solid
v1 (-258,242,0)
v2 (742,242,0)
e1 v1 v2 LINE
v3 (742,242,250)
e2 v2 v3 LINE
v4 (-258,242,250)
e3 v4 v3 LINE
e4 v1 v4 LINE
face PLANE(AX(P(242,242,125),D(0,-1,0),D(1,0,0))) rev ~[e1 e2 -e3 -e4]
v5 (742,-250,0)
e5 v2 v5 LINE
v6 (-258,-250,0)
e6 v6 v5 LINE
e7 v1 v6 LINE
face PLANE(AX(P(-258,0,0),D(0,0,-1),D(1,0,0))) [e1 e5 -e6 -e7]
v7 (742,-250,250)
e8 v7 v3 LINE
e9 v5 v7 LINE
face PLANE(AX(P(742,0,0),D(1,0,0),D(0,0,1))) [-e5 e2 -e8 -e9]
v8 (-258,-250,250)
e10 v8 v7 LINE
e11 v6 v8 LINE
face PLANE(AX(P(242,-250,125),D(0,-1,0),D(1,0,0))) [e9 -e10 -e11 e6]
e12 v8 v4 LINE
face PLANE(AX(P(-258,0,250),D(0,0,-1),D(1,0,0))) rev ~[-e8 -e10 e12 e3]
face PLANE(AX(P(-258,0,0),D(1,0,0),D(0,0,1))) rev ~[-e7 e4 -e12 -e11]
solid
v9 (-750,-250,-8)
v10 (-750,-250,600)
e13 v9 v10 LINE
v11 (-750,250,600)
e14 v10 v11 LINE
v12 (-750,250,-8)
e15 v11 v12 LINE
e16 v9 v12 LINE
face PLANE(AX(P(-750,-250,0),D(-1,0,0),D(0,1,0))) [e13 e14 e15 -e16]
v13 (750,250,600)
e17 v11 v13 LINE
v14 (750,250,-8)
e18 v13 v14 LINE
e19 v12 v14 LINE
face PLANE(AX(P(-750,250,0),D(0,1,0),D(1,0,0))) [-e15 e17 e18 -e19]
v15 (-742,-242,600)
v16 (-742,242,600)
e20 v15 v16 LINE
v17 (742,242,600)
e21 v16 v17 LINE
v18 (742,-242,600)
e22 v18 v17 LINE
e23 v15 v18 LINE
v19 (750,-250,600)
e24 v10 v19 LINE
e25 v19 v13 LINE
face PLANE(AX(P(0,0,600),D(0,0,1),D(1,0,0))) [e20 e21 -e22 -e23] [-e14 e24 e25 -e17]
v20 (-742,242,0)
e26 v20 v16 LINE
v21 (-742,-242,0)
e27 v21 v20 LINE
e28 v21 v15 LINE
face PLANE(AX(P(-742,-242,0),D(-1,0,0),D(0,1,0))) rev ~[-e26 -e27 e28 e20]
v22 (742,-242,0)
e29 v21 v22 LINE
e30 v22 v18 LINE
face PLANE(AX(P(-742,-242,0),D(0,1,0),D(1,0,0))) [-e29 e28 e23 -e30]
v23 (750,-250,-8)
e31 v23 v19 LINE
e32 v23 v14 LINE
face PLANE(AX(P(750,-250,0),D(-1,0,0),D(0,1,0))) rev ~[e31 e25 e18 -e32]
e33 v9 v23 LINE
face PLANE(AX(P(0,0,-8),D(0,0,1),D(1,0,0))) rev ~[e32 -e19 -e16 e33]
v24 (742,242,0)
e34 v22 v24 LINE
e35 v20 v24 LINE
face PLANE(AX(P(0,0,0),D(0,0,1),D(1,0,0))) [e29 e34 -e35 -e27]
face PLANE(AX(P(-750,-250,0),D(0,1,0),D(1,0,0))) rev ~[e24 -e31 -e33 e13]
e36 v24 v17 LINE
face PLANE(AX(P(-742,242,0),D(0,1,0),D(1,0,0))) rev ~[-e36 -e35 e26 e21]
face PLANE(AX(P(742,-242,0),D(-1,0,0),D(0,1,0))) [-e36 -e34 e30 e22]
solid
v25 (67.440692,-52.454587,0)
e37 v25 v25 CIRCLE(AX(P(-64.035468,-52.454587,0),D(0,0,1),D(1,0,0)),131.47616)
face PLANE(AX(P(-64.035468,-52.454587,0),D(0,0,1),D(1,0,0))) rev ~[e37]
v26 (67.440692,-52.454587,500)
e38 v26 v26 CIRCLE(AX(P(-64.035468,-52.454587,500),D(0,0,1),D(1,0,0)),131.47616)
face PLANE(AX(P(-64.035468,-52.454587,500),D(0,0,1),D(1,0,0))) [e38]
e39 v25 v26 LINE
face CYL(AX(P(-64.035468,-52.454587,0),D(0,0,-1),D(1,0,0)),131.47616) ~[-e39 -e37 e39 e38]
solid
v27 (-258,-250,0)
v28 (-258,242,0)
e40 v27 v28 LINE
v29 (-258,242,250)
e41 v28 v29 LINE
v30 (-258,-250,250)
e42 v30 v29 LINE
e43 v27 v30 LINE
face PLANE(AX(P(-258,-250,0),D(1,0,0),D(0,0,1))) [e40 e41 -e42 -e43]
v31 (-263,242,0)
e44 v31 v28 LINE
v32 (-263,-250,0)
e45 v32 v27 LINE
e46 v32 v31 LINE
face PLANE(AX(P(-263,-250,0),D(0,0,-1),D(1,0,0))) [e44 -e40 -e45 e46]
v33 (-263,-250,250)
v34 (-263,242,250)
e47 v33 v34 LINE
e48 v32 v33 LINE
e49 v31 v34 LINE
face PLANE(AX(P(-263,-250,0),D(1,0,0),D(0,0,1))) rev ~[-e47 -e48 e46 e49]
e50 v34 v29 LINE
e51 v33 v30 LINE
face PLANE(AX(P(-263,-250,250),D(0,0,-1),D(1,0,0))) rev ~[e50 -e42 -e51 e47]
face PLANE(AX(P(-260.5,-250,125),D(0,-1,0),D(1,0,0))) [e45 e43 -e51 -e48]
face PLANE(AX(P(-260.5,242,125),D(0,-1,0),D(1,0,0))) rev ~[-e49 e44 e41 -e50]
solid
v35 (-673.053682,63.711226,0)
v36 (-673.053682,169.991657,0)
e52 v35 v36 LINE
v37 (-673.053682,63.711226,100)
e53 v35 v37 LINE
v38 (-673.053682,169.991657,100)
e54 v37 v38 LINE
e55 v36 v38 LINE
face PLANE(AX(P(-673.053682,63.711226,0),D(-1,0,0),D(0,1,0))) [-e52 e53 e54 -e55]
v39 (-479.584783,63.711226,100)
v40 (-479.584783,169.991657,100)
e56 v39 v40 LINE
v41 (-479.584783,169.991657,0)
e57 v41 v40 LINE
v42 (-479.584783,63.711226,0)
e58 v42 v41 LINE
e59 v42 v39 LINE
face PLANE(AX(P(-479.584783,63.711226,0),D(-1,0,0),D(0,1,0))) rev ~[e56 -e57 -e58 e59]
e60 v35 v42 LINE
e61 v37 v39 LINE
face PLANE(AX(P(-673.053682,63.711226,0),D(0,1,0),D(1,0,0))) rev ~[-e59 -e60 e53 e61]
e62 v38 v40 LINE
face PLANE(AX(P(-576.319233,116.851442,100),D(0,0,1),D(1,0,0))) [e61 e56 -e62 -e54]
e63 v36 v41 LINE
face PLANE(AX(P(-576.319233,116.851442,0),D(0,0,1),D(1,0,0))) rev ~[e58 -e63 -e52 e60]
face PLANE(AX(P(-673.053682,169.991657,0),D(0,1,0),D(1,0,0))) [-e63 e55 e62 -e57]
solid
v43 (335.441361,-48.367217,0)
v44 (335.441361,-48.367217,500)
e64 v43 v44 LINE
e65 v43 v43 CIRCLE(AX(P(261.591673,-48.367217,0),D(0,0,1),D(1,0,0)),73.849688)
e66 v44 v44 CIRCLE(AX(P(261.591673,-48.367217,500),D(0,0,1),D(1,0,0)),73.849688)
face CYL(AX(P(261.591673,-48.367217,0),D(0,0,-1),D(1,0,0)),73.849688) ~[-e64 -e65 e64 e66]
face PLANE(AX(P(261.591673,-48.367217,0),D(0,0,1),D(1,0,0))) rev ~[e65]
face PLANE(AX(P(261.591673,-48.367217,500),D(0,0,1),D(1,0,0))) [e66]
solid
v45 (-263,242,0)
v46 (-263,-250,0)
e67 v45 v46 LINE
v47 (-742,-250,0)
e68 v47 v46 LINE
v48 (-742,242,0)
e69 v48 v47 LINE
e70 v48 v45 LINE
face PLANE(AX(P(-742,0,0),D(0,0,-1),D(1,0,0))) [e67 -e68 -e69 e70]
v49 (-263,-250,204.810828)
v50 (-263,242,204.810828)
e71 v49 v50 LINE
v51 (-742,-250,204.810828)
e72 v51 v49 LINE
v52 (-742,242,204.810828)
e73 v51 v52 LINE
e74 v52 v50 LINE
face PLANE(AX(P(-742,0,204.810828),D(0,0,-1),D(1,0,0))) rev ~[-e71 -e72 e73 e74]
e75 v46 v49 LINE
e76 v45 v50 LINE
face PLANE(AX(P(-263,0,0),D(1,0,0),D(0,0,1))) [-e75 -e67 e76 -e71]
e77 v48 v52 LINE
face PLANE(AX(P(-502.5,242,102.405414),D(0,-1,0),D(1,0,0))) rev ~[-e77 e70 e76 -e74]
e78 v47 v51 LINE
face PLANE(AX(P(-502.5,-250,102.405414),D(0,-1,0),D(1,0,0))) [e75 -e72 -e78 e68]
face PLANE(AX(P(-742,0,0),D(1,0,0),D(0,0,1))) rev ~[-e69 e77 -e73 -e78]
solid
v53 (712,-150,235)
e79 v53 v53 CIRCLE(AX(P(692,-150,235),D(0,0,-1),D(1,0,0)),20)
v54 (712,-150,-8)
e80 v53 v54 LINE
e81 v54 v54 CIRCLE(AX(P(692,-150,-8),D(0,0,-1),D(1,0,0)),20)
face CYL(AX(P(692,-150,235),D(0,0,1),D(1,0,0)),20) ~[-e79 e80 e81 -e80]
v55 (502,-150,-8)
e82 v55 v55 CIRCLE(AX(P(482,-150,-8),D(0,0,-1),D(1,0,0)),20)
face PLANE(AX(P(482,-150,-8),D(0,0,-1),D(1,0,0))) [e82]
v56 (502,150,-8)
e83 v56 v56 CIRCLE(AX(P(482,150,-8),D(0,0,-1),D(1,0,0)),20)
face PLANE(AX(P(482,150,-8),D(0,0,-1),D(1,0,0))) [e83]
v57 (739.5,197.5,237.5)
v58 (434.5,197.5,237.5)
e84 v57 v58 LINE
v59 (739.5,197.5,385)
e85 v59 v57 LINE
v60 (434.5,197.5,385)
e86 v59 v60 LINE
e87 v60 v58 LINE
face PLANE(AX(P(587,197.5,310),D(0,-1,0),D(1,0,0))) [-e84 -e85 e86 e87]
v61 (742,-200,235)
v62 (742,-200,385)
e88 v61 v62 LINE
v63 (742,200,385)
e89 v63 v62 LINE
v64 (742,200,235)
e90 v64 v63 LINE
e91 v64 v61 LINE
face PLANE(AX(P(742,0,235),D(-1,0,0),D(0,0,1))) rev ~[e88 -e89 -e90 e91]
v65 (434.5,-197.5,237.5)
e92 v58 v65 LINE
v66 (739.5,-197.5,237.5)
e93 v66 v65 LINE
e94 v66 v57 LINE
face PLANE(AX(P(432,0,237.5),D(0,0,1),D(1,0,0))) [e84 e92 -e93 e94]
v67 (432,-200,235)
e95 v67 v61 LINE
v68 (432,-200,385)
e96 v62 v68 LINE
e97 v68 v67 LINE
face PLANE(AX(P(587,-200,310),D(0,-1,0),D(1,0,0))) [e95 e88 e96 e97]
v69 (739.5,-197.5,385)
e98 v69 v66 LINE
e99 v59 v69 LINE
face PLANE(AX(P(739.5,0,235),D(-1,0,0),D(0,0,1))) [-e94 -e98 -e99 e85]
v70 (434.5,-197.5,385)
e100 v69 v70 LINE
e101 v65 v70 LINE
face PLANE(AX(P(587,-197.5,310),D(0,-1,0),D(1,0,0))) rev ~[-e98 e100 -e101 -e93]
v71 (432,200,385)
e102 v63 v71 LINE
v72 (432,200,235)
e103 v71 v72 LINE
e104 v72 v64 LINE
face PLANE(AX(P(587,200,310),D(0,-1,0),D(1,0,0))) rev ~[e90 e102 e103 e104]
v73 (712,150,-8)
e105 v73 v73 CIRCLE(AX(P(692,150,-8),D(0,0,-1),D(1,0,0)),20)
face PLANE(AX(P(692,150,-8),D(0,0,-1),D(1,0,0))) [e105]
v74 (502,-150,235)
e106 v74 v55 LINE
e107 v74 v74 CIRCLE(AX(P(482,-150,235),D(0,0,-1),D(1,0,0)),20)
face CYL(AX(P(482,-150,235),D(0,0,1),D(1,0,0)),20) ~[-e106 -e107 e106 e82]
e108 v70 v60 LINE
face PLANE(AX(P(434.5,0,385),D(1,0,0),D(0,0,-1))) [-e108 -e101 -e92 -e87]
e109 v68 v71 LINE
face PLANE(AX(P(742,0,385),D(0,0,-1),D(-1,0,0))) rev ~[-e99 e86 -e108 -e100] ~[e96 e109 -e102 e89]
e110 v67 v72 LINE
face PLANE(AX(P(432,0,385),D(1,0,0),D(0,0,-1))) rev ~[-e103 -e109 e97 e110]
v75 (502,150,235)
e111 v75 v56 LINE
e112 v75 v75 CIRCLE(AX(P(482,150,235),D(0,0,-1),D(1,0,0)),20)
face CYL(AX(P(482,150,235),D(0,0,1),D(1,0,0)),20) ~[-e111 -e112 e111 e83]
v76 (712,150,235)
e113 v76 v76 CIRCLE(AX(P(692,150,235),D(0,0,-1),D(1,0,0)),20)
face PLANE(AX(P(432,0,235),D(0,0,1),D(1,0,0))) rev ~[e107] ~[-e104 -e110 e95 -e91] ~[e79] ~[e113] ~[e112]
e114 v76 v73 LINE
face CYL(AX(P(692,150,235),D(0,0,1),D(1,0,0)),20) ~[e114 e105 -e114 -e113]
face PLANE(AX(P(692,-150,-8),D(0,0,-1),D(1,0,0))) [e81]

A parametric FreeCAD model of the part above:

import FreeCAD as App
import Part
import Sketcher
from FreeCAD import Vector


def faces_at(feature, points):
    """Names of the faces that lie closest to the given points."""
    faces = feature.Shape.Faces
    near = lambda p: min(range(len(faces)), key=lambda i: faces[i].distToShape(Part.Vertex(*p))[0])
    return sorted({f"Face{near(p) + 1}" for p in points})

doc = App.newDocument("Part")
body = doc.addObject("PartDesign::Body", "Body")

sketch1 = doc.addObject("Sketcher::SketchObject", "Sketch")
body.addObject(sketch1)
sketch1.AttachmentSupport = (doc.XY_Plane, [""])
sketch1.MapMode = "FlatFace"
sketch1.addGeometry([
    Part.LineSegment(Vector(-750, 250, 0), Vector(-750, -250, 0)),
    Part.LineSegment(Vector(-750, -250, 0), Vector(750, -250, 0)),
    Part.LineSegment(Vector(750, -250, 0), Vector(750, 250, 0)),
    Part.LineSegment(Vector(750, 250, 0), Vector(-750, 250, 0)),
], False)
sketch1.addConstraint([
    Sketcher.Constraint("Coincident", 0, 2, 1, 1),
    Sketcher.Constraint("Coincident", 1, 2, 2, 1),
    Sketcher.Constraint("Coincident", 2, 2, 3, 1),
    Sketcher.Constraint("Coincident", 3, 2, 0, 1),
    Sketcher.Constraint("Vertical", 0),
    Sketcher.Constraint("Horizontal", 1),
    Sketcher.Constraint("Vertical", 2),
    Sketcher.Constraint("Horizontal", 3),
    Sketcher.Constraint("Symmetric", 0, 2, 2, 2, -1, 1),
    Sketcher.Constraint("DistanceX", 1, 1, 1, 2, 1500.0),
    Sketcher.Constraint("DistanceY", 0, 2, 0, 1, 500.0),
])
pad1 = doc.addObject("PartDesign::Pad", "Pad")
body.addObject(pad1)
pad1.Profile = sketch1
pad1.Length = 8
pad1.Reversed = True
body2 = doc.addObject("PartDesign::Body", "Body001")

sketch2 = doc.addObject("Sketcher::SketchObject", "Sketch001")
body2.addObject(sketch2)
sketch2.AttachmentSupport = (doc.getObject("XY_Plane001"), [""])
sketch2.MapMode = "FlatFace"
sketch2.addGeometry([
    Part.LineSegment(Vector(-750, 250, 0), Vector(-750, -250, 0)),
    Part.LineSegment(Vector(-750, -250, 0), Vector(750, -250, 0)),
    Part.LineSegment(Vector(750, -250, 0), Vector(750, 250, 0)),
    Part.LineSegment(Vector(750, 250, 0), Vector(-750, 250, 0)),
    Part.LineSegment(Vector(742, -242, 0), Vector(-742, -242, 0)),
    Part.LineSegment(Vector(-742, -242, 0), Vector(-742, 242, 0)),
    Part.LineSegment(Vector(-742, 242, 0), Vector(742, 242, 0)),
    Part.LineSegment(Vector(742, 242, 0), Vector(742, -242, 0)),
], False)
sketch2.addConstraint([
    Sketcher.Constraint("Coincident", 0, 2, 1, 1),
    Sketcher.Constraint("Coincident", 1, 2, 2, 1),
    Sketcher.Constraint("Coincident", 2, 2, 3, 1),
    Sketcher.Constraint("Coincident", 3, 2, 0, 1),
    Sketcher.Constraint("Coincident", 4, 2, 5, 1),
    Sketcher.Constraint("Coincident", 5, 2, 6, 1),
    Sketcher.Constraint("Coincident", 6, 2, 7, 1),
    Sketcher.Constraint("Coincident", 7, 2, 4, 1),
    Sketcher.Constraint("Vertical", 0),
    Sketcher.Constraint("Horizontal", 1),
    Sketcher.Constraint("Vertical", 2),
    Sketcher.Constraint("Horizontal", 3),
    Sketcher.Constraint("Horizontal", 4),
    Sketcher.Constraint("Vertical", 5),
    Sketcher.Constraint("Horizontal", 6),
    Sketcher.Constraint("Vertical", 7),
    Sketcher.Constraint("Symmetric", 0, 2, 2, 2, -1, 1),
    Sketcher.Constraint("Symmetric", 4, 2, 6, 2, -1, 1),
    Sketcher.Constraint("DistanceX", 1, 1, 1, 2, 1500.0),
    Sketcher.Constraint("DistanceX", 4, 2, 4, 1, 1484.0),
    Sketcher.Constraint("DistanceY", 0, 2, 0, 1, 500.0),
    Sketcher.Constraint("DistanceY", 5, 1, 5, 2, 484.0),
])
pad2 = doc.addObject("PartDesign::Pad", "Pad001")
body2.addObject(pad2)
pad2.Profile = sketch2
pad2.Length = 600
doc.recompute()

boolean = doc.addObject("PartDesign::Boolean", "Boolean")
body.addObject(boolean)
boolean.Type = "Fuse"
boolean.addObjects([body2])
body3 = doc.addObject("PartDesign::Body", "Body002")

sketch3 = doc.addObject("Sketcher::SketchObject", "Sketch002")
body3.addObject(sketch3)
sketch3.AttachmentSupport = (doc.getObject("XZ_Plane002"), [""])
sketch3.MapMode = "FlatFace"
sketch3.AttachmentOffset = App.Placement(Vector(0, 0, 250), App.Rotation())
sketch3.addGeometry([
    Part.LineSegment(Vector(-263, 250, 0), Vector(-263, 0, 0)),
    Part.LineSegment(Vector(-263, 0, 0), Vector(-258, 0, 0)),
    Part.LineSegment(Vector(-258, 0, 0), Vector(-258, 250, 0)),
    Part.LineSegment(Vector(-258, 250, 0), Vector(-263, 250, 0)),
], False)
sketch3.addConstraint([
    Sketcher.Constraint("Coincident", 0, 2, 1, 1),
    Sketcher.Constraint("Coincident", 1, 2, 2, 1),
    Sketcher.Constraint("Coincident", 2, 2, 3, 1),
    Sketcher.Constraint("Coincident", 3, 2, 0, 1),
    Sketcher.Constraint("Vertical", 0),
    Sketcher.Constraint("Horizontal", 1),
    Sketcher.Constraint("Vertical", 2),
    Sketcher.Constraint("Horizontal", 3),
    Sketcher.Constraint("PointOnObject", 0, 2, -1),
    Sketcher.Constraint("DistanceX", 1, 1, 1, 2, 5.0),
    Sketcher.Constraint("DistanceY", 0, 2, 0, 1, 250.0),
    Sketcher.Constraint("DistanceX", 0, 2, -1, 1, 263.0),
])
pad3 = doc.addObject("PartDesign::Pad", "Pad002")
body3.addObject(pad3)
pad3.Profile = sketch3
pad3.Length = 492
pad3.Reversed = True
body4 = doc.addObject("PartDesign::Body", "Body003")

sketch4 = doc.addObject("Sketcher::SketchObject", "Sketch003")
body4.addObject(sketch4)
sketch4.AttachmentSupport = (doc.getObject("XZ_Plane003"), [""])
sketch4.MapMode = "FlatFace"
sketch4.addGeometry([
    Part.LineSegment(Vector(432, 235, 0), Vector(742, 235, 0)),
    Part.LineSegment(Vector(742, 235, 0), Vector(742, 385, 0)),
    Part.LineSegment(Vector(742, 385, 0), Vector(432, 385, 0)),
    Part.LineSegment(Vector(432, 385, 0), Vector(432, 235, 0)),
], False)
sketch4.addConstraint([
    Sketcher.Constraint("Coincident", 0, 2, 1, 1),
    Sketcher.Constraint("Coincident", 1, 2, 2, 1),
    Sketcher.Constraint("Coincident", 2, 2, 3, 1),
    Sketcher.Constraint("Coincident", 3, 2, 0, 1),
    Sketcher.Constraint("Horizontal", 0),
    Sketcher.Constraint("Vertical", 1),
    Sketcher.Constraint("Horizontal", 2),
    Sketcher.Constraint("Vertical", 3),
    Sketcher.Constraint("DistanceX", 0, 1, 0, 2, 310.0),
    Sketcher.Constraint("DistanceY", 1, 1, 1, 2, 150.0),
    Sketcher.Constraint("DistanceX", -1, 1, 0, 2, 742.0),
    Sketcher.Constraint("DistanceY", -1, 1, 0, 2, 235.0),
])
pad4 = doc.addObject("PartDesign::Pad", "Pad003")
body4.addObject(pad4)
pad4.Profile = sketch4
pad4.Type = "TwoLengths"
pad4.Length = 200
pad4.Length2 = 200
pad4.Reversed = True
doc.recompute()

thickness = doc.addObject("PartDesign::Thickness", "Thickness")
body4.addObject(thickness)
thickness.Base = (pad4, faces_at(pad4, [(587, 0, 385)]))
thickness.Value = 2.5
thickness.Reversed = True
thickness.Join = "Arc"

sketch5 = doc.addObject("Sketcher::SketchObject", "Sketch004")
body4.addObject(sketch5)
sketch5.AttachmentSupport = (doc.getObject("XY_Plane003"), [""])
sketch5.MapMode = "FlatFace"
sketch5.AttachmentOffset = App.Placement(Vector(0, 0, 235), App.Rotation())
sketch5.addGeometry([
    Part.Circle(Vector(482, -150, 0), Vector(0, 0, 1), 20),
    Part.Circle(Vector(692, -150, 0), Vector(0, 0, 1), 20),
    Part.Circle(Vector(692, 150, 0), Vector(0, 0, 1), 20),
    Part.Circle(Vector(482, 150, 0), Vector(0, 0, 1), 20),
], False)
sketch5.addConstraint([
    Sketcher.Constraint("Equal", 0, 1),
    Sketcher.Constraint("Equal", 1, 2),
    Sketcher.Constraint("Equal", 2, 3),
    Sketcher.Constraint("Symmetric", 1, 3, 2, 3, -1),
    Sketcher.Constraint("Symmetric", 0, 3, 3, 3, -1),
    Sketcher.Constraint("Horizontal", 0, 3, 1, 3),
    Sketcher.Constraint("Diameter", 0, 40.0),
    Sketcher.Constraint("DistanceX", -1, 1, 0, 3, 482.0),
    Sketcher.Constraint("DistanceY", 0, 3, -1, 1, 150.0),
    Sketcher.Constraint("DistanceX", -1, 1, 1, 3, 692.0),
])
pad5 = doc.addObject("PartDesign::Pad", "Pad004")
body4.addObject(pad5)
pad5.Profile = sketch5
pad5.Length = 243
pad5.Reversed = True
body5 = doc.addObject("PartDesign::Body", "Body004")

sketch6 = doc.addObject("Sketcher::SketchObject", "Sketch005")
body5.addObject(sketch6)
sketch6.AttachmentSupport = (doc.getObject("XY_Plane004"), [""])
sketch6.MapMode = "FlatFace"
sketch6.addGeometry(Part.Circle(Vector(-64, -52, 0), Vector(0, 0, 1), 131), False)
sketch6.addConstraint([
    Sketcher.Constraint("Diameter", 0, 262.952321),
    Sketcher.Constraint("DistanceX", 0, 3, -1, 1, 64.035468),
    Sketcher.Constraint("DistanceY", 0, 3, -1, 1, 52.454587),
])
pad6 = doc.addObject("PartDesign::Pad", "Pad005")
body5.addObject(pad6)
pad6.Profile = sketch6
pad6.Length = 500
body6 = doc.addObject("PartDesign::Body", "Body005")

sketch7 = doc.addObject("Sketcher::SketchObject", "Sketch006")
body6.addObject(sketch7)
sketch7.AttachmentSupport = (doc.getObject("XY_Plane005"), [""])
sketch7.MapMode = "FlatFace"
sketch7.addGeometry(Part.Circle(Vector(262, -48, 0), Vector(0, 0, 1), 74), False)
sketch7.addConstraint([
    Sketcher.Constraint("Diameter", 0, 147.699375),
    Sketcher.Constraint("DistanceX", -1, 1, 0, 3, 261.591673),
    Sketcher.Constraint("DistanceY", 0, 3, -1, 1, 48.367217),
])
pad7 = doc.addObject("PartDesign::Pad", "Pad006")
body6.addObject(pad7)
pad7.Profile = sketch7
pad7.Length = 500
body7 = doc.addObject("PartDesign::Body", "Body006")

sketch8 = doc.addObject("Sketcher::SketchObject", "Sketch007")
body7.addObject(sketch8)
sketch8.AttachmentSupport = (doc.getObject("XY_Plane006"), [""])
sketch8.MapMode = "FlatFace"
sketch8.addGeometry([
    Part.LineSegment(Vector(-673, 170, 0), Vector(-673, 64, 0)),
    Part.LineSegment(Vector(-673, 64, 0), Vector(-480, 64, 0)),
    Part.LineSegment(Vector(-480, 64, 0), Vector(-480, 170, 0)),
    Part.LineSegment(Vector(-480, 170, 0), Vector(-673, 170, 0)),
], False)
sketch8.addConstraint([
    Sketcher.Constraint("Coincident", 0, 2, 1, 1),
    Sketcher.Constraint("Coincident", 1, 2, 2, 1),
    Sketcher.Constraint("Coincident", 2, 2, 3, 1),
    Sketcher.Constraint("Coincident", 3, 2, 0, 1),
    Sketcher.Constraint("Vertical", 0),
    Sketcher.Constraint("Horizontal", 1),
    Sketcher.Constraint("Vertical", 2),
    Sketcher.Constraint("Horizontal", 3),
    Sketcher.Constraint("DistanceX", 1, 1, 1, 2, 193.468899),
    Sketcher.Constraint("DistanceY", 0, 2, 0, 1, 106.280431),
    Sketcher.Constraint("DistanceX", 0, 2, -1, 1, 673.053682),
    Sketcher.Constraint("DistanceY", -1, 1, 0, 2, 63.711226),
])
pad8 = doc.addObject("PartDesign::Pad", "Pad007")
body7.addObject(pad8)
pad8.Profile = sketch8
pad8.Length = 100
body8 = doc.addObject("PartDesign::Body", "Body007")

sketch9 = doc.addObject("Sketcher::SketchObject", "Sketch008")
body8.addObject(sketch9)
sketch9.AttachmentSupport = (doc.getObject("XZ_Plane007"), [""])
sketch9.MapMode = "FlatFace"
sketch9.addGeometry([
    Part.LineSegment(Vector(-258, 250, 0), Vector(-258, 0, 0)),
    Part.LineSegment(Vector(-258, 0, 0), Vector(742, 0, 0)),
    Part.LineSegment(Vector(742, 0, 0), Vector(742, 250, 0)),
    Part.LineSegment(Vector(742, 250, 0), Vector(-258, 250, 0)),
], False)
sketch9.addConstraint([
    Sketcher.Constraint("Coincident", 0, 2, 1, 1),
    Sketcher.Constraint("Coincident", 1, 2, 2, 1),
    Sketcher.Constraint("Coincident", 2, 2, 3, 1),
    Sketcher.Constraint("Coincident", 3, 2, 0, 1),
    Sketcher.Constraint("Vertical", 0),
    Sketcher.Constraint("Horizontal", 1),
    Sketcher.Constraint("Vertical", 2),
    Sketcher.Constraint("Horizontal", 3),
    Sketcher.Constraint("PointOnObject", 0, 2, -1),
    Sketcher.Constraint("DistanceX", 1, 1, 1, 2, 1000.0),
    Sketcher.Constraint("DistanceY", 0, 2, 0, 1, 250.0),
    Sketcher.Constraint("DistanceX", 0, 2, -1, 1, 258.0),
])
pad9 = doc.addObject("PartDesign::Pad", "Pad008")
body8.addObject(pad9)
pad9.Profile = sketch9
pad9.Type = "TwoLengths"
pad9.Length = 250
pad9.Length2 = 242
body9 = doc.addObject("PartDesign::Body", "Body008")

sketch10 = doc.addObject("Sketcher::SketchObject", "Sketch009")
body9.addObject(sketch10)
sketch10.AttachmentSupport = (doc.getObject("XZ_Plane008"), [""])
sketch10.MapMode = "FlatFace"
sketch10.addGeometry([
    Part.LineSegment(Vector(-742, 205, 0), Vector(-742, 0, 0)),
    Part.LineSegment(Vector(-742, 0, 0), Vector(-263, 0, 0)),
    Part.LineSegment(Vector(-263, 0, 0), Vector(-263, 205, 0)),
    Part.LineSegment(Vector(-263, 205, 0), Vector(-742, 205, 0)),
], False)
sketch10.addConstraint([
    Sketcher.Constraint("Coincident", 0, 2, 1, 1),
    Sketcher.Constraint("Coincident", 1, 2, 2, 1),
    Sketcher.Constraint("Coincident", 2, 2, 3, 1),
    Sketcher.Constraint("Coincident", 3, 2, 0, 1),
    Sketcher.Constraint("Vertical", 0),
    Sketcher.Constraint("Horizontal", 1),
    Sketcher.Constraint("Vertical", 2),
    Sketcher.Constraint("Horizontal", 3),
    Sketcher.Constraint("PointOnObject", 0, 2, -1),
    Sketcher.Constraint("DistanceX", 1, 1, 1, 2, 479.0),
    Sketcher.Constraint("DistanceX", 0, 2, -1, 1, 742.0),
    Sketcher.Constraint("DistanceY", 0, 2, 0, 1, 204.810828),
])
pad10 = doc.addObject("PartDesign::Pad", "Pad009")
body9.addObject(pad10)
pad10.Profile = sketch10
pad10.Type = "TwoLengths"
pad10.Length = 250
pad10.Length2 = 242

doc.recompute()
